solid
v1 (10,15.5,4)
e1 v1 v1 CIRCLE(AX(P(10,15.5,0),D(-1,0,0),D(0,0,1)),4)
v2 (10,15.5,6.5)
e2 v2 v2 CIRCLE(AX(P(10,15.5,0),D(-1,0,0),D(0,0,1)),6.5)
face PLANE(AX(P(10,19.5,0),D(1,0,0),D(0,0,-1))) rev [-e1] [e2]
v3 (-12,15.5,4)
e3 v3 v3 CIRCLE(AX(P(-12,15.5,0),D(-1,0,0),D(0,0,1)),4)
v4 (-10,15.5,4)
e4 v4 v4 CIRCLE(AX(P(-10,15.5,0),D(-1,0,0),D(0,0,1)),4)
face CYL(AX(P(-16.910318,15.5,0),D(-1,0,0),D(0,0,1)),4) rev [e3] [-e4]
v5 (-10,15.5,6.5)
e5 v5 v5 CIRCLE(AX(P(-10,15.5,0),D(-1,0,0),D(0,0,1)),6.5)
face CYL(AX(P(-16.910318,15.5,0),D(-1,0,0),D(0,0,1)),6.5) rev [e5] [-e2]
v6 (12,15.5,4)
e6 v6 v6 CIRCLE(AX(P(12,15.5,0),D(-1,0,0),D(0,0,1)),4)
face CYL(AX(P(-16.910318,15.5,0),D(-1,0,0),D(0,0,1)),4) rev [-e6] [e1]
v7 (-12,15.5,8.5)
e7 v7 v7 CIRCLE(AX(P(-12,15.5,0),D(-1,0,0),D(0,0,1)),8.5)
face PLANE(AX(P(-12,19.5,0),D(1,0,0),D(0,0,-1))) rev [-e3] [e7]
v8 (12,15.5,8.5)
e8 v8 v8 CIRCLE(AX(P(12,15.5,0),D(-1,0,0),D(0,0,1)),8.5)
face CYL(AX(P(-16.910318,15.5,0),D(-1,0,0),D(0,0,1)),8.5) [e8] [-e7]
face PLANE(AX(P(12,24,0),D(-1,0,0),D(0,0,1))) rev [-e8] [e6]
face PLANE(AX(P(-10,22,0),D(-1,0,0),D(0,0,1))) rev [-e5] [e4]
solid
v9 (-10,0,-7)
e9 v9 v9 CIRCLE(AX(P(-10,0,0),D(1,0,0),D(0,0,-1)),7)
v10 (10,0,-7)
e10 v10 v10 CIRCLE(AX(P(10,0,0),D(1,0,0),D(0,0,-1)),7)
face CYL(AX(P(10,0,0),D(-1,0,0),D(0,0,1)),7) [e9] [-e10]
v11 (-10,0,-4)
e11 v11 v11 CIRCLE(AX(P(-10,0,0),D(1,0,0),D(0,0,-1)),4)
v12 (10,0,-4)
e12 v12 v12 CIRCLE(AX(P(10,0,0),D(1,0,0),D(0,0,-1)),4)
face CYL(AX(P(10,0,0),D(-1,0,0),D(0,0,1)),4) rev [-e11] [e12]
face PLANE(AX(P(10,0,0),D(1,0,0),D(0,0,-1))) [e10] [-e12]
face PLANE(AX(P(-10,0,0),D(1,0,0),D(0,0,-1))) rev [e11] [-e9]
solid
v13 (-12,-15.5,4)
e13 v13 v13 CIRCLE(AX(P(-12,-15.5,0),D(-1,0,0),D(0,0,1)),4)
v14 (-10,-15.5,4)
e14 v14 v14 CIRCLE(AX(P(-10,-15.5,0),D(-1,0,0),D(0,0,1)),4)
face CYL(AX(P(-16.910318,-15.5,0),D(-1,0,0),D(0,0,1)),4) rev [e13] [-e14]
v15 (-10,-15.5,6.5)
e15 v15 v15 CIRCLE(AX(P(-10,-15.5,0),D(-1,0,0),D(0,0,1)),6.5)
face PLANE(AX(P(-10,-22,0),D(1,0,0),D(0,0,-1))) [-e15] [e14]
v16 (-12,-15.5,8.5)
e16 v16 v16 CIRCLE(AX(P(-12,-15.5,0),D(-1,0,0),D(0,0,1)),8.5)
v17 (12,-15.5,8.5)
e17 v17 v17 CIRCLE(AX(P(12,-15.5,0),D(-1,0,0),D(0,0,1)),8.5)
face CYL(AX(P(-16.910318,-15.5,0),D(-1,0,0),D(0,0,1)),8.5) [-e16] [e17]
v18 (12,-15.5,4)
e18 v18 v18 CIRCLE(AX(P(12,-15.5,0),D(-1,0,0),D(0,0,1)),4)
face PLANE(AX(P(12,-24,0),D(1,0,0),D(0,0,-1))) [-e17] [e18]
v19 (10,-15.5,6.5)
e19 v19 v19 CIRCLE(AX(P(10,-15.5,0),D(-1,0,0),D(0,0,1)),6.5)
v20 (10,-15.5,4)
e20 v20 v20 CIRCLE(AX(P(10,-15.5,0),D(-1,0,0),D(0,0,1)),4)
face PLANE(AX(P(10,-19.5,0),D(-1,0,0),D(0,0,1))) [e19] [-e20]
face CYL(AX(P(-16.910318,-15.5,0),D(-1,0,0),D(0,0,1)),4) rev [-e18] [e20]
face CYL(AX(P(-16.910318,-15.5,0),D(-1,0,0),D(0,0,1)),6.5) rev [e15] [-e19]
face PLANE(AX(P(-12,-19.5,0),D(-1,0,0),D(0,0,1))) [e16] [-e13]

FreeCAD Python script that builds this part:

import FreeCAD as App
import Part
import Sketcher
from FreeCAD import Vector
Q = App.Units.Quantity


def add_polygon(sketch, points):
    """Adds a closed chain of lines whose ends are joined by coincident constraints."""
    first, n = sketch.GeometryCount, len(points)
    for a, b in zip(points, points[1:] + points[:1]):
        sketch.addGeometry(Part.LineSegment(App.Vector(*a, 0), App.Vector(*b, 0)), False)
    for i in range(n):
        sketch.addConstraint(Sketcher.Constraint("Coincident", first + i, 2, first + (i + 1) % n, 1))

doc = App.newDocument("Part")
body = doc.addObject("PartDesign::Body", "Body")

# Sketch on YZ plane
sketch1 = doc.addObject("Sketcher::SketchObject", "Sketch")
body.addObject(sketch1)
sketch1.AttachmentSupport = (doc.YZ_Plane, [""])
sketch1.MapMode = "FlatFace"
sketch1.addGeometry(Part.Circle(Vector(0, 0, 0), Vector(0, 0, 1), 7), False)
sketch1.addGeometry(Part.Circle(Vector(0, 0, 0), Vector(0, 0, 1), 4), False)
sketch1.addConstraint(Sketcher.Constraint("Coincident", 0, 3, -1, 1))
sketch1.addConstraint(Sketcher.Constraint("Coincident", 1, 3, -1, 1))
sketch1.addConstraint(Sketcher.Constraint("Diameter", 0, Q("14 mm")))
sketch1.addConstraint(Sketcher.Constraint("Diameter", 1, Q("8 mm")))
pad1 = doc.addObject("PartDesign::Pad", "Pad")
body.addObject(pad1)
pad1.Profile = sketch1
pad1.Length = 20
pad1.Midplane = True
body2 = doc.addObject("PartDesign::Body", "Body001")

# Sketch on XY plane
sketch2 = doc.addObject("Sketcher::SketchObject", "Sketch001")
body2.addObject(sketch2)
sketch2.AttachmentSupport = (doc.getObject("XY_Plane001"), [""])
sketch2.MapMode = "FlatFace"
add_polygon(sketch2, [(12, 24), (-12, 24), (-12, 19.5), (-10, 19.5), (-10, 22), (10, 22), (10, 19.5), (12, 19.5)])  # lines 0-7
sketch2.addGeometry(Part.LineSegment(Vector(-12, 15.5, 0), Vector(12, 15.5, 0)), True)  # axis
sketch2.addConstraint(Sketcher.Constraint("Horizontal", 0))
sketch2.addConstraint(Sketcher.Constraint("Vertical", 1))
sketch2.addConstraint(Sketcher.Constraint("Horizontal", 2))
sketch2.addConstraint(Sketcher.Constraint("Vertical", 3))
sketch2.addConstraint(Sketcher.Constraint("Horizontal", 4))
sketch2.addConstraint(Sketcher.Constraint("Vertical", 5))
sketch2.addConstraint(Sketcher.Constraint("Horizontal", 6))
sketch2.addConstraint(Sketcher.Constraint("Vertical", 7))
sketch2.addConstraint(Sketcher.Constraint("Horizontal", 8))
sketch2.addConstraint(Sketcher.Constraint("Symmetric", 2, 2, 5, 2, -2))
sketch2.addConstraint(Sketcher.Constraint("Vertical", 1, 2, 8, 1))
sketch2.addConstraint(Sketcher.Constraint("Vertical", 7, 2, 8, 2))
sketch2.addConstraint(Sketcher.Constraint("Equal", 2, 6))
sketch2.addConstraint(Sketcher.Constraint("DistanceX", 0, 2, 0, 1, Q("24 mm")))
sketch2.addConstraint(Sketcher.Constraint("DistanceX", 2, 1, 2, 2, Q("2 mm")))
sketch2.addConstraint(Sketcher.Constraint("DistanceY", 1, 2, 1, 1, Q("4.5 mm")))
sketch2.addConstraint(Sketcher.Constraint("DistanceY", 3, 1, 3, 2, Q("2.5 mm")))
sketch2.addConstraint(Sketcher.Constraint("DistanceY", -1, 1, 0, 2, Q("24 mm")))
sketch2.addConstraint(Sketcher.Constraint("DistanceY", 8, 1, 1, 2, Q("4 mm")))
revolution = doc.addObject("PartDesign::Revolution", "Revolution")
body2.addObject(revolution)
revolution.Profile = sketch2
revolution.ReferenceAxis = (sketch2, ["Axis0"])
revolution.Angle = 360
body3 = doc.addObject("PartDesign::Body", "Body002")

# Sketch on XY plane
sketch3 = doc.addObject("Sketcher::SketchObject", "Sketch002")
body3.addObject(sketch3)
sketch3.AttachmentSupport = (doc.getObject("XY_Plane002"), [""])
sketch3.MapMode = "FlatFace"
add_polygon(sketch3, [(-12, -24), (12, -24), (12, -19.5), (10, -19.5), (10, -22), (-10, -22), (-10, -19.5), (-12, -19.5)])  # lines 0-7
sketch3.addGeometry(Part.LineSegment(Vector(-12, -15.5, 0), Vector(12, -15.5, 0)), True)  # axis
sketch3.addConstraint(Sketcher.Constraint("Horizontal", 0))
sketch3.addConstraint(Sketcher.Constraint("Vertical", 1))
sketch3.addConstraint(Sketcher.Constraint("Horizontal", 2))
sketch3.addConstraint(Sketcher.Constraint("Vertical", 3))
sketch3.addConstraint(Sketcher.Constraint("Horizontal", 4))
sketch3.addConstraint(Sketcher.Constraint("Vertical", 5))
sketch3.addConstraint(Sketcher.Constraint("Horizontal", 6))
sketch3.addConstraint(Sketcher.Constraint("Vertical", 7))
sketch3.addConstraint(Sketcher.Constraint("Horizontal", 8))
sketch3.addConstraint(Sketcher.Constraint("Symmetric", 2, 2, 5, 2, -2))
sketch3.addConstraint(Sketcher.Constraint("Vertical", 7, 2, 8, 1))
sketch3.addConstraint(Sketcher.Constraint("Vertical", 1, 2, 8, 2))
sketch3.addConstraint(Sketcher.Constraint("Equal", 2, 6))
sketch3.addConstraint(Sketcher.Constraint("DistanceX", 0, 1, 0, 2, Q("24 mm")))
sketch3.addConstraint(Sketcher.Constraint("DistanceX", 2, 2, 2, 1, Q("2 mm")))
sketch3.addConstraint(Sketcher.Constraint("DistanceY", 1, 1, 1, 2, Q("4.5 mm")))
sketch3.addConstraint(Sketcher.Constraint("DistanceY", 3, 2, 3, 1, Q("2.5 mm")))
sketch3.addConstraint(Sketcher.Constraint("DistanceY", 0, 2, -1, 1, Q("24 mm")))
sketch3.addConstraint(Sketcher.Constraint("DistanceY", 6, 2, 8, 1, Q("4 mm")))
revolution2 = doc.addObject("PartDesign::Revolution", "Revolution001")
body3.addObject(revolution2)
revolution2.Profile = sketch3
revolution2.ReferenceAxis = (sketch3, ["Axis0"])
revolution2.Angle = 360

doc.recompute()
